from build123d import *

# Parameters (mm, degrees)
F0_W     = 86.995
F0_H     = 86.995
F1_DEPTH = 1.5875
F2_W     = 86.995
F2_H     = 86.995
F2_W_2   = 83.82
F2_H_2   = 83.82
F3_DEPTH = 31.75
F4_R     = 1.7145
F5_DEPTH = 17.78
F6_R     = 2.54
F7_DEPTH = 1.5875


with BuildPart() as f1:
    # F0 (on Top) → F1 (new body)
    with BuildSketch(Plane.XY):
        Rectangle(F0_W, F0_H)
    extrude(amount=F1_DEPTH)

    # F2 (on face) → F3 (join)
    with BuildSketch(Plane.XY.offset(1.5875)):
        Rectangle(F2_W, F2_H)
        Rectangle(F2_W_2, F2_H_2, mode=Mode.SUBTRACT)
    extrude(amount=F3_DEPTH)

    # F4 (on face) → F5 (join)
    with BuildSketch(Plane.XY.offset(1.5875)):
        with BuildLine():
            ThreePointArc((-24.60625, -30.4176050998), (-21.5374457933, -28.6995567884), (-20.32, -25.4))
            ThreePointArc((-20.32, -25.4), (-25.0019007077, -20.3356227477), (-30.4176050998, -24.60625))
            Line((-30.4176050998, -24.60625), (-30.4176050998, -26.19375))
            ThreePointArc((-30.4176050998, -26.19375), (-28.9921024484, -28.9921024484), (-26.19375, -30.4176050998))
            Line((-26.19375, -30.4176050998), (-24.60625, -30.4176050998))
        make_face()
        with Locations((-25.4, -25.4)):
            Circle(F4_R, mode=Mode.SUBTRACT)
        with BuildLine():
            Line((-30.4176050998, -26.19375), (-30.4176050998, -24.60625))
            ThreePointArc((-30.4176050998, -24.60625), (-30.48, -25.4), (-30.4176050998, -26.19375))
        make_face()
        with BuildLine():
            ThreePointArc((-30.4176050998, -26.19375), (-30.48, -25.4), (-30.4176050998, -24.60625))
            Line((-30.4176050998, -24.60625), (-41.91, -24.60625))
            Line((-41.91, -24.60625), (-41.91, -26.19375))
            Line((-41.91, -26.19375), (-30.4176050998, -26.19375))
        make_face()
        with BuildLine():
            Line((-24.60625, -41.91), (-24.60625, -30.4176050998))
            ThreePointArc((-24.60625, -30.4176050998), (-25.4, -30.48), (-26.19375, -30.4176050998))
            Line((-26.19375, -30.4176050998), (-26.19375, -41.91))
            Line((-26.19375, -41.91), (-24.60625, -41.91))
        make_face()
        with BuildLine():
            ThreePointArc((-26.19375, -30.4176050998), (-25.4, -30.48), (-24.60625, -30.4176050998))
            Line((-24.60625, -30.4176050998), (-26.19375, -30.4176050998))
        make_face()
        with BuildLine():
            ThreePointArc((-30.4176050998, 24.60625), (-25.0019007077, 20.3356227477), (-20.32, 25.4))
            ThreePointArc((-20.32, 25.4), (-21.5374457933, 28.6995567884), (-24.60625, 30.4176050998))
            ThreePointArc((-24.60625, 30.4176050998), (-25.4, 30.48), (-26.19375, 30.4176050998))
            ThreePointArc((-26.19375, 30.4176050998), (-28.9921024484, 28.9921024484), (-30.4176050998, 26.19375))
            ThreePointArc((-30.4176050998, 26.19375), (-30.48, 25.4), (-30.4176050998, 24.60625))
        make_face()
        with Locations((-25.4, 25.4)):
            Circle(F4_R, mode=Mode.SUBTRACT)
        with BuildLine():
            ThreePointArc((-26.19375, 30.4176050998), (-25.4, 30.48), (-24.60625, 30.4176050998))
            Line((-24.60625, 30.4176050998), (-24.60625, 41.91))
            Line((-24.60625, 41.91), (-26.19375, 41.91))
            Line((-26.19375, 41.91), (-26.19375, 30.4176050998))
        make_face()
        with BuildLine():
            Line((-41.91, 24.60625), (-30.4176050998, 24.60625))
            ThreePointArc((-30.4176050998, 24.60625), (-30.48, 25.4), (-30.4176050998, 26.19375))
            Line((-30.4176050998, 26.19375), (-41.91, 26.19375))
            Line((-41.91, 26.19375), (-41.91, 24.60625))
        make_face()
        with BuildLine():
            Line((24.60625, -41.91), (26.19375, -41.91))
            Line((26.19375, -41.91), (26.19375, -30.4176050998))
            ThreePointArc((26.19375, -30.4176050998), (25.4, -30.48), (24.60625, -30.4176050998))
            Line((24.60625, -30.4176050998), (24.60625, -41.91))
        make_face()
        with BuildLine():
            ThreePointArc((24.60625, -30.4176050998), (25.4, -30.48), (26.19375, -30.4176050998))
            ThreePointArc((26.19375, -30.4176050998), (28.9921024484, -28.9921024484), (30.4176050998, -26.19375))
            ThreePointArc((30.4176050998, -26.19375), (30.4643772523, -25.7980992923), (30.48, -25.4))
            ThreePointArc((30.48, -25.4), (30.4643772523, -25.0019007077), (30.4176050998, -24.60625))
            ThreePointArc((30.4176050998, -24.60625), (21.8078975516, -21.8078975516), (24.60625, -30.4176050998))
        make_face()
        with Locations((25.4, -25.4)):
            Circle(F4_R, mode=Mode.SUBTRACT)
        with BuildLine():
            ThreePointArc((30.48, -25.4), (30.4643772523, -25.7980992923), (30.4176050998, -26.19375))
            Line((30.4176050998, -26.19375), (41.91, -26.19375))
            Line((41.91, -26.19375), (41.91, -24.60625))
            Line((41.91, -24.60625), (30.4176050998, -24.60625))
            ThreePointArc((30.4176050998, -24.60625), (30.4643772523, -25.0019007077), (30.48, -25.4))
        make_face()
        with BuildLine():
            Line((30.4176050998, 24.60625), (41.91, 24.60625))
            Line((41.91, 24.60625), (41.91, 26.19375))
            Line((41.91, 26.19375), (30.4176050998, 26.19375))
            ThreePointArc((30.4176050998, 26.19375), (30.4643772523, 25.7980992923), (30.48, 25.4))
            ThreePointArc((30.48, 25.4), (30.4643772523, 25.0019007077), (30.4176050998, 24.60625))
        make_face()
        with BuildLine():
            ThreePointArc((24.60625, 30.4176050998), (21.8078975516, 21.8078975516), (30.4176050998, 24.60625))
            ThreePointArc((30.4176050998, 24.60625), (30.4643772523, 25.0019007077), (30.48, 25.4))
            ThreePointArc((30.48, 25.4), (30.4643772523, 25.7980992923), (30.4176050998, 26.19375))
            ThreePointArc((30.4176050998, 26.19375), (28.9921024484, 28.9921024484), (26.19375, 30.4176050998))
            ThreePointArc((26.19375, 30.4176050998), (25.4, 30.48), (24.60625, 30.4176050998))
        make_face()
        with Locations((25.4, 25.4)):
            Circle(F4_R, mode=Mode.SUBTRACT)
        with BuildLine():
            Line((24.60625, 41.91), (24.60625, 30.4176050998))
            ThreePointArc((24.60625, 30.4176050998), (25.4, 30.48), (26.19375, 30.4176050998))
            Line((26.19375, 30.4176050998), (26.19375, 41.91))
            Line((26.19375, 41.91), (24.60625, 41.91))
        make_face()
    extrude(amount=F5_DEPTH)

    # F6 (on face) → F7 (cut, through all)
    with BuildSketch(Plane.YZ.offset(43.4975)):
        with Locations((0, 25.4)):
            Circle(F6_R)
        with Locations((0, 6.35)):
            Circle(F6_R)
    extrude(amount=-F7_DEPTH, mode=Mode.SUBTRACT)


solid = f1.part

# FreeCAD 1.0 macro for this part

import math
import FreeCAD as App
import Part
import Sketcher
Q = App.Units.Quantity

doc = App.newDocument("Part")
body = doc.addObject("PartDesign::Body", "Body")

# Sketch on XY plane
sketch1 = doc.addObject("Sketcher::SketchObject", "Sketch")
body.addObject(sketch1)
sketch1.AttachmentSupport = (doc.XY_Plane, [""])
sketch1.MapMode = "FlatFace"
sketch1.addGeometry([
    Part.LineSegment(App.Vector(-43, 43, 0), App.Vector(-43, -43, 0)),
    Part.LineSegment(App.Vector(-43, -43, 0), App.Vector(43, -43, 0)),
    Part.LineSegment(App.Vector(43, -43, 0), App.Vector(43, 43, 0)),
    Part.LineSegment(App.Vector(43, 43, 0), App.Vector(-43, 43, 0)),
], False)
sketch1.addConstraint([
    Sketcher.Constraint("Coincident", 0, 2, 1, 1),
    Sketcher.Constraint("Coincident", 1, 2, 2, 1),
    Sketcher.Constraint("Coincident", 2, 2, 3, 1),
    Sketcher.Constraint("Coincident", 3, 2, 0, 1),
    Sketcher.Constraint("Vertical", 0),
    Sketcher.Constraint("Horizontal", 1),
    Sketcher.Constraint("Vertical", 2),
    Sketcher.Constraint("Horizontal", 3),
    Sketcher.Constraint("Symmetric", 0, 2, 2, 2, -1, 1),
    Sketcher.Constraint("Equal", 3, 0),
    Sketcher.Constraint("DistanceX", 1, 1, 1, 2, Q("3.425 in")),
])
pad1 = doc.addObject("PartDesign::Pad", "Pad")
body.addObject(pad1)
pad1.Profile = sketch1
pad1.Length = Q("0.0625 in")

# Sketch on XY plane
sketch2 = doc.addObject("Sketcher::SketchObject", "Sketch001")
body.addObject(sketch2)
sketch2.AttachmentSupport = (doc.XY_Plane, [""])
sketch2.MapMode = "FlatFace"
sketch2.AttachmentOffset = App.Placement(App.Vector(0, 0, 0.0625 * 25.4), App.Rotation())
sketch2.addGeometry([
    Part.LineSegment(App.Vector(-43, 43, 0), App.Vector(-43, -43, 0)),  # 0
    Part.LineSegment(App.Vector(-43, -43, 0), App.Vector(43, -43, 0)),  # 1
    Part.LineSegment(App.Vector(43, -43, 0), App.Vector(43, 43, 0)),  # 2
    Part.LineSegment(App.Vector(43, 43, 0), App.Vector(-43, 43, 0)),  # 3
    Part.LineSegment(App.Vector(42, -42, 0), App.Vector(-42, -42, 0)),  # 4
    Part.LineSegment(App.Vector(-42, -42, 0), App.Vector(-42, 42, 0)),  # 5
    Part.LineSegment(App.Vector(-42, 42, 0), App.Vector(42, 42, 0)),  # 6
    Part.LineSegment(App.Vector(42, 42, 0), App.Vector(42, -42, 0)),  # 7
], False)
sketch2.addConstraint([
    Sketcher.Constraint("Coincident", 0, 2, 1, 1),
    Sketcher.Constraint("Coincident", 1, 2, 2, 1),
    Sketcher.Constraint("Coincident", 2, 2, 3, 1),
    Sketcher.Constraint("Coincident", 3, 2, 0, 1),
    Sketcher.Constraint("Coincident", 4, 2, 5, 1),
    Sketcher.Constraint("Coincident", 5, 2, 6, 1),
    Sketcher.Constraint("Coincident", 6, 2, 7, 1),
    Sketcher.Constraint("Coincident", 7, 2, 4, 1),
    Sketcher.Constraint("Vertical", 0),
    Sketcher.Constraint("Horizontal", 1),
    Sketcher.Constraint("Vertical", 2),
    Sketcher.Constraint("Horizontal", 3),
    Sketcher.Constraint("Horizontal", 4),
    Sketcher.Constraint("Vertical", 5),
    Sketcher.Constraint("Horizontal", 6),
    Sketcher.Constraint("Vertical", 7),
    Sketcher.Constraint("Symmetric", 0, 2, 2, 2, -1, 1),
    Sketcher.Constraint("Symmetric", 4, 2, 6, 2, -1, 1),
    Sketcher.Constraint("Equal", 3, 0),
    Sketcher.Constraint("Equal", 6, 5),
    Sketcher.Constraint("DistanceX", 4, 2, 4, 1, Q("3.3 in")),
    Sketcher.Constraint("DistanceX", 1, 1, 1, 2, Q("3.425 in")),
])
pad2 = doc.addObject("PartDesign::Pad", "Pad001")
body.addObject(pad2)
pad2.Profile = sketch2
pad2.Length = Q("1.25 in")

# Sketch on XY plane
sketch3 = doc.addObject("Sketcher::SketchObject", "Sketch002")
body.addObject(sketch3)
sketch3.AttachmentSupport = (doc.XY_Plane, [""])
sketch3.MapMode = "FlatFace"
sketch3.AttachmentOffset = App.Placement(App.Vector(0, 0, 0.0625 * 25.4), App.Rotation())
sketch3.addGeometry([
    Part.ArcOfCircle(Part.Circle(App.Vector(-25.4, -25.4, 0), App.Vector(0, 0, 1), 5.1), math.radians(-81), math.radians(0)),  # 0
    Part.ArcOfCircle(Part.Circle(App.Vector(-25.4, -25.4, 0), App.Vector(0, 0, 1), 5.1), math.radians(0), math.radians(171)),  # 1
    Part.LineSegment(App.Vector(-30.4, -24.6, 0), App.Vector(-41.9, -24.6, 0)),  # 2
    Part.LineSegment(App.Vector(-41.9, -24.6, 0), App.Vector(-41.9, -26.2, 0)),  # 3
    Part.LineSegment(App.Vector(-41.9, -26.2, 0), App.Vector(-30.4, -26.2, 0)),  # 4
    Part.ArcOfCircle(Part.Circle(App.Vector(-25.4, -25.4, 0), App.Vector(0, 0, 1), 5.1), math.radians(-171), math.radians(-99)),  # 5
    Part.LineSegment(App.Vector(-26.2, -30.4, 0), App.Vector(-26.2, -41.9, 0)),  # 6
    Part.LineSegment(App.Vector(-26.2, -41.9, 0), App.Vector(-24.6, -41.9, 0)),  # 7
    Part.LineSegment(App.Vector(-24.6, -41.9, 0), App.Vector(-24.6, -30.4, 0)),  # 8
    Part.Circle(App.Vector(-25.4, -25.4, 0), App.Vector(0, 0, 1), 1.7),  # 9
    Part.ArcOfCircle(Part.Circle(App.Vector(-25.4, 25.4, 0), App.Vector(0, 0, 1), 5.1), math.radians(-171), math.radians(0)),  # 10
    Part.ArcOfCircle(Part.Circle(App.Vector(-25.4, 25.4, 0), App.Vector(0, 0, 1), 5.1), math.radians(0), math.radians(81)),  # 11
    Part.LineSegment(App.Vector(-24.6, 30.4, 0), App.Vector(-24.6, 41.9, 0)),  # 12
    Part.LineSegment(App.Vector(-24.6, 41.9, 0), App.Vector(-26.2, 41.9, 0)),  # 13
    Part.LineSegment(App.Vector(-26.2, 41.9, 0), App.Vector(-26.2, 30.4, 0)),  # 14
    Part.ArcOfCircle(Part.Circle(App.Vector(-25.4, 25.4, 0), App.Vector(0, 0, 1), 5.1), math.radians(99), math.radians(171)),  # 15
    Part.LineSegment(App.Vector(-30.4, 26.2, 0), App.Vector(-41.9, 26.2, 0)),  # 16
    Part.LineSegment(App.Vector(-41.9, 26.2, 0), App.Vector(-41.9, 24.6, 0)),  # 17
    Part.LineSegment(App.Vector(-41.9, 24.6, 0), App.Vector(-30.4, 24.6, 0)),  # 18
    Part.Circle(App.Vector(-25.4, 25.4, 0), App.Vector(0, 0, 1), 1.7),  # 19
    Part.LineSegment(App.Vector(24.6, -41.9, 0), App.Vector(26.2, -41.9, 0)),  # 20
    Part.LineSegment(App.Vector(26.2, -41.9, 0), App.Vector(26.2, -30.4, 0)),  # 21
    Part.ArcOfCircle(Part.Circle(App.Vector(25.4, -25.4, 0), App.Vector(0, 0, 1), 5.1), math.radians(-81), math.radians(-9)),  # 22
    Part.LineSegment(App.Vector(30.4, -26.2, 0), App.Vector(41.9, -26.2, 0)),  # 23
    Part.LineSegment(App.Vector(41.9, -26.2, 0), App.Vector(41.9, -24.6, 0)),  # 24
    Part.LineSegment(App.Vector(41.9, -24.6, 0), App.Vector(30.4, -24.6, 0)),  # 25
    Part.ArcOfCircle(Part.Circle(App.Vector(25.4, -25.4, 0), App.Vector(0, 0, 1), 5.1), math.radians(9), math.radians(261)),  # 26
    Part.LineSegment(App.Vector(24.6, -30.4, 0), App.Vector(24.6, -41.9, 0)),  # 27
    Part.Circle(App.Vector(25.4, -25.4, 0), App.Vector(0, 0, 1), 1.7),  # 28
    Part.LineSegment(App.Vector(30.4, 24.6, 0), App.Vector(41.9, 24.6, 0)),  # 29
    Part.LineSegment(App.Vector(41.9, 24.6, 0), App.Vector(41.9, 26.2, 0)),  # 30
    Part.LineSegment(App.Vector(41.9, 26.2, 0), App.Vector(30.4, 26.2, 0)),  # 31
    Part.ArcOfCircle(Part.Circle(App.Vector(25.4, 25.4, 0), App.Vector(0, 0, 1), 5.1), math.radians(9), math.radians(81)),  # 32
    Part.LineSegment(App.Vector(26.2, 30.4, 0), App.Vector(26.2, 41.9, 0)),  # 33
    Part.LineSegment(App.Vector(26.2, 41.9, 0), App.Vector(24.6, 41.9, 0)),  # 34
    Part.LineSegment(App.Vector(24.6, 41.9, 0), App.Vector(24.6, 30.4, 0)),  # 35
    Part.ArcOfCircle(Part.Circle(App.Vector(25.4, 25.4, 0), App.Vector(0, 0, 1), 5.1), math.radians(99), math.radians(351)),  # 36
    Part.Circle(App.Vector(25.4, 25.4, 0), App.Vector(0, 0, 1), 1.7),  # 37
], False)
sketch3.addConstraint([
    Sketcher.Constraint("Tangent", 0, 2, 1, 1),
    Sketcher.Constraint("Coincident", 1, 2, 2, 1),
    Sketcher.Constraint("Coincident", 2, 2, 3, 1),
    Sketcher.Constraint("Coincident", 3, 2, 4, 1),
    Sketcher.Constraint("Coincident", 4, 2, 5, 1),
    Sketcher.Constraint("Coincident", 5, 2, 6, 1),
    Sketcher.Constraint("Coincident", 6, 2, 7, 1),
    Sketcher.Constraint("Coincident", 7, 2, 8, 1),
    Sketcher.Constraint("Coincident", 8, 2, 0, 1),
    Sketcher.Constraint("Tangent", 10, 2, 11, 1),
    Sketcher.Constraint("Coincident", 11, 2, 12, 1),
    Sketcher.Constraint("Coincident", 12, 2, 13, 1),
    Sketcher.Constraint("Coincident", 13, 2, 14, 1),
    Sketcher.Constraint("Coincident", 14, 2, 15, 1),
    Sketcher.Constraint("Coincident", 15, 2, 16, 1),
    Sketcher.Constraint("Coincident", 16, 2, 17, 1),
    Sketcher.Constraint("Coincident", 17, 2, 18, 1),
    Sketcher.Constraint("Coincident", 18, 2, 10, 1),
    Sketcher.Constraint("Coincident", 20, 2, 21, 1),
    Sketcher.Constraint("Coincident", 21, 2, 22, 1),
    Sketcher.Constraint("Coincident", 22, 2, 23, 1),
    Sketcher.Constraint("Coincident", 23, 2, 24, 1),
    Sketcher.Constraint("Coincident", 24, 2, 25, 1),
    Sketcher.Constraint("Coincident", 25, 2, 26, 1),
    Sketcher.Constraint("Coincident", 26, 2, 27, 1),
    Sketcher.Constraint("Coincident", 27, 2, 20, 1),
    Sketcher.Constraint("Coincident", 29, 2, 30, 1),
    Sketcher.Constraint("Coincident", 30, 2, 31, 1),
    Sketcher.Constraint("Coincident", 31, 2, 32, 1),
    Sketcher.Constraint("Coincident", 32, 2, 33, 1),
    Sketcher.Constraint("Coincident", 33, 2, 34, 1),
    Sketcher.Constraint("Coincident", 34, 2, 35, 1),
    Sketcher.Constraint("Coincident", 35, 2, 36, 1),
    Sketcher.Constraint("Coincident", 36, 2, 29, 1),
    Sketcher.Constraint("Horizontal", 2),
    Sketcher.Constraint("Vertical", 3),
    Sketcher.Constraint("Horizontal", 4),
    Sketcher.Constraint("Vertical", 6),
    Sketcher.Constraint("Horizontal", 7),
    Sketcher.Constraint("Vertical", 8),
    Sketcher.Constraint("Vertical", 12),
    Sketcher.Constraint("Horizontal", 13),
    Sketcher.Constraint("Vertical", 14),
    Sketcher.Constraint("Horizontal", 16),
    Sketcher.Constraint("Vertical", 17),
    Sketcher.Constraint("Horizontal", 18),
    Sketcher.Constraint("Horizontal", 20),
    Sketcher.Constraint("Vertical", 21),
    Sketcher.Constraint("Horizontal", 23),
    Sketcher.Constraint("Vertical", 24),
    Sketcher.Constraint("Horizontal", 25),
    Sketcher.Constraint("Vertical", 27),
    Sketcher.Constraint("Horizontal", 29),
    Sketcher.Constraint("Vertical", 30),
    Sketcher.Constraint("Horizontal", 31),
    Sketcher.Constraint("Vertical", 33),
    Sketcher.Constraint("Horizontal", 34),
    Sketcher.Constraint("Vertical", 35),
    Sketcher.Constraint("Coincident", 5, 3, 0, 3),
    Sketcher.Constraint("Coincident", 9, 3, 0, 3),
    Sketcher.Constraint("Coincident", 15, 3, 10, 3),
    Sketcher.Constraint("Coincident", 19, 3, 10, 3),
    Sketcher.Constraint("Coincident", 26, 3, 22, 3),
    Sketcher.Constraint("Coincident", 28, 3, 22, 3),
    Sketcher.Constraint("Coincident", 36, 3, 32, 3),
    Sketcher.Constraint("Coincident", 37, 3, 32, 3),
    Sketcher.Constraint("Equal", 0, 1),
    Sketcher.Constraint("Equal", 1, 5),
    Sketcher.Constraint("Equal", 5, 10),
    Sketcher.Constraint("Equal", 10, 11),
    Sketcher.Constraint("Equal", 11, 15),
    Sketcher.Constraint("Equal", 9, 19),
    Sketcher.Constraint("Equal", 15, 22),
    Sketcher.Constraint("Equal", 22, 26),
    Sketcher.Constraint("Equal", 19, 28),
    Sketcher.Constraint("Equal", 26, 32),
    Sketcher.Constraint("Equal", 32, 36),
    Sketcher.Constraint("Equal", 28, 37),
    Sketcher.Constraint("Symmetric", 10, 3, 22, 3, -1, 1),
    Sketcher.Constraint("Symmetric", 0, 3, 32, 3, -1, 1),
    Sketcher.Constraint("Symmetric", 13, 2, 20, 2, -1, 1),
    Sketcher.Constraint("Symmetric", 16, 2, 23, 2, -1, 1),
    Sketcher.Constraint("Symmetric", 2, 2, 29, 2, -1, 1),
    Sketcher.Constraint("Symmetric", 6, 2, 33, 2, -1, 1),
    Sketcher.Constraint("Symmetric", 0, 3, 22, 3, -2),
    Sketcher.Constraint("Symmetric", 6, 2, 20, 2, -2),
    Sketcher.Constraint("Symmetric", 3, 2, 23, 2, -2),
    Sketcher.Constraint("Horizontal", 28, 3, 0, 2),
    Sketcher.Constraint("Horizontal", 5, 2, 8, 2),
    Sketcher.Constraint("Horizontal", 37, 3, 10, 2),
    Sketcher.Constraint("Horizontal", 11, 2, 14, 2),
    Sketcher.Constraint("Horizontal", 2, 2, 24, 2),
    Sketcher.Constraint("Horizontal", 21, 2, 26, 2),
    Sketcher.Constraint("Horizontal", 18, 2, 29, 2),
    Sketcher.Constraint("Horizontal", 16, 2, 30, 2),
    Sketcher.Constraint("Horizontal", 32, 2, 35, 2),
    Sketcher.Constraint("Vertical", 1, 2, 4, 2),
    Sketcher.Constraint("Equal", 34, 3),
    Sketcher.Constraint("Equal", 31, 6),
    Sketcher.Constraint("Radius", 0, Q("0.2 in")),
    Sketcher.Constraint("Diameter", 9, Q("0.135 in")),
    Sketcher.Constraint("DistanceX", 0, 3, -1, 1, Q("1 in")),
    Sketcher.Constraint("DistanceY", 0, 3, -1, 1, Q("1 in")),
    Sketcher.Constraint("DistanceX", 7, 1, 7, 2, Q("0.0625 in")),
    Sketcher.Constraint("DistanceX", 2, 2, -1, 1, Q("1.65 in")),
])
pad3 = doc.addObject("PartDesign::Pad", "Pad002")
body.addObject(pad3)
pad3.Profile = sketch3
pad3.Length = Q("0.7 in")

# Sketch on YZ plane
sketch4 = doc.addObject("Sketcher::SketchObject", "Sketch003")
body.addObject(sketch4)
sketch4.AttachmentSupport = (doc.YZ_Plane, [""])
sketch4.MapMode = "FlatFace"
sketch4.AttachmentOffset = App.Placement(App.Vector(0, 0, 1.7125 * 25.4), App.Rotation())
sketch4.addGeometry([
    Part.Circle(App.Vector(0, 25.4, 0), App.Vector(0, 0, 1), 2.5),
    Part.Circle(App.Vector(0, 6.3, 0), App.Vector(0, 0, 1), 2.5),
], False)
sketch4.addConstraint([
    Sketcher.Constraint("Equal", 0, 1),
    Sketcher.Constraint("PointOnObject", 0, 3, -2),
    Sketcher.Constraint("PointOnObject", 1, 3, -2),
    Sketcher.Constraint("Diameter", 0, Q("0.2 in")),
    Sketcher.Constraint("DistanceY", -1, 1, 0, 3, Q("1 in")),
    Sketcher.Constraint("DistanceY", -1, 1, 1, 3, Q("0.25 in")),
])
pocket1 = doc.addObject("PartDesign::Pocket", "Pocket")
body.addObject(pocket1)
pocket1.Profile = sketch4
pocket1.Length = Q("0.0625 in")

doc.recompute()
